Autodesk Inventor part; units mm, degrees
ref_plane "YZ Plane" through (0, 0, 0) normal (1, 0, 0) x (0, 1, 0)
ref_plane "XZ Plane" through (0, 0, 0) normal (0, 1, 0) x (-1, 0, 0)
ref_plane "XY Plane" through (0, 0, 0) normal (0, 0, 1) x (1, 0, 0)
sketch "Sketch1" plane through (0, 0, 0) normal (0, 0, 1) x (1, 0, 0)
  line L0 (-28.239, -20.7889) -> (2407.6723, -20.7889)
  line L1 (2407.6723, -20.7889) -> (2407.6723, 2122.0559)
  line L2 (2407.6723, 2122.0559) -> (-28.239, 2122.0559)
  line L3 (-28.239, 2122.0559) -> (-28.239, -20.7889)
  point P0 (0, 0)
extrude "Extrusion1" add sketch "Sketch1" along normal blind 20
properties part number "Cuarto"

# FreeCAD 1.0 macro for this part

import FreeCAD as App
import Part
import Sketcher
Q = App.Units.Quantity


def add_polygon(sketch, points):
    """Adds a closed chain of lines whose ends are joined by coincident constraints."""
    first, n = sketch.GeometryCount, len(points)
    for a, b in zip(points, points[1:] + points[:1]):
        sketch.addGeometry(Part.LineSegment(App.Vector(*a, 0), App.Vector(*b, 0)), False)
    for i in range(n):
        sketch.addConstraint(Sketcher.Constraint("Coincident", first + i, 2, first + (i + 1) % n, 1))

doc = App.newDocument("Part")
body = doc.addObject("PartDesign::Body", "Body")

# Sketch on XY plane
sketch1 = doc.addObject("Sketcher::SketchObject", "Sketch")
body.addObject(sketch1)
sketch1.AttachmentSupport = (doc.XY_Plane, [""])
sketch1.MapMode = "FlatFace"
add_polygon(sketch1, [(-28.239, 2122.0559), (-28.239, -20.7889), (2407.6723, -20.7889), (2407.6723, 2122.0559)])  # lines 0-3
sketch1.addConstraint([
    Sketcher.Constraint("Vertical", 0),
    Sketcher.Constraint("Horizontal", 1),
    Sketcher.Constraint("Vertical", 2),
    Sketcher.Constraint("Horizontal", 3),
    Sketcher.Constraint("DistanceX", 1, 1, 1, 2, Q("2435.9113 mm")),
    Sketcher.Constraint("DistanceY", 0, 2, 0, 1, Q("2142.8448 mm")),
    Sketcher.Constraint("DistanceX", 0, 2, -1, 1, Q("28.239 mm")),
    Sketcher.Constraint("DistanceY", 0, 2, -1, 1, Q("20.789 mm")),
])
pad1 = doc.addObject("PartDesign::Pad", "Pad")
body.addObject(pad1)
pad1.Profile = sketch1
pad1.Length = 20

doc.recompute()
